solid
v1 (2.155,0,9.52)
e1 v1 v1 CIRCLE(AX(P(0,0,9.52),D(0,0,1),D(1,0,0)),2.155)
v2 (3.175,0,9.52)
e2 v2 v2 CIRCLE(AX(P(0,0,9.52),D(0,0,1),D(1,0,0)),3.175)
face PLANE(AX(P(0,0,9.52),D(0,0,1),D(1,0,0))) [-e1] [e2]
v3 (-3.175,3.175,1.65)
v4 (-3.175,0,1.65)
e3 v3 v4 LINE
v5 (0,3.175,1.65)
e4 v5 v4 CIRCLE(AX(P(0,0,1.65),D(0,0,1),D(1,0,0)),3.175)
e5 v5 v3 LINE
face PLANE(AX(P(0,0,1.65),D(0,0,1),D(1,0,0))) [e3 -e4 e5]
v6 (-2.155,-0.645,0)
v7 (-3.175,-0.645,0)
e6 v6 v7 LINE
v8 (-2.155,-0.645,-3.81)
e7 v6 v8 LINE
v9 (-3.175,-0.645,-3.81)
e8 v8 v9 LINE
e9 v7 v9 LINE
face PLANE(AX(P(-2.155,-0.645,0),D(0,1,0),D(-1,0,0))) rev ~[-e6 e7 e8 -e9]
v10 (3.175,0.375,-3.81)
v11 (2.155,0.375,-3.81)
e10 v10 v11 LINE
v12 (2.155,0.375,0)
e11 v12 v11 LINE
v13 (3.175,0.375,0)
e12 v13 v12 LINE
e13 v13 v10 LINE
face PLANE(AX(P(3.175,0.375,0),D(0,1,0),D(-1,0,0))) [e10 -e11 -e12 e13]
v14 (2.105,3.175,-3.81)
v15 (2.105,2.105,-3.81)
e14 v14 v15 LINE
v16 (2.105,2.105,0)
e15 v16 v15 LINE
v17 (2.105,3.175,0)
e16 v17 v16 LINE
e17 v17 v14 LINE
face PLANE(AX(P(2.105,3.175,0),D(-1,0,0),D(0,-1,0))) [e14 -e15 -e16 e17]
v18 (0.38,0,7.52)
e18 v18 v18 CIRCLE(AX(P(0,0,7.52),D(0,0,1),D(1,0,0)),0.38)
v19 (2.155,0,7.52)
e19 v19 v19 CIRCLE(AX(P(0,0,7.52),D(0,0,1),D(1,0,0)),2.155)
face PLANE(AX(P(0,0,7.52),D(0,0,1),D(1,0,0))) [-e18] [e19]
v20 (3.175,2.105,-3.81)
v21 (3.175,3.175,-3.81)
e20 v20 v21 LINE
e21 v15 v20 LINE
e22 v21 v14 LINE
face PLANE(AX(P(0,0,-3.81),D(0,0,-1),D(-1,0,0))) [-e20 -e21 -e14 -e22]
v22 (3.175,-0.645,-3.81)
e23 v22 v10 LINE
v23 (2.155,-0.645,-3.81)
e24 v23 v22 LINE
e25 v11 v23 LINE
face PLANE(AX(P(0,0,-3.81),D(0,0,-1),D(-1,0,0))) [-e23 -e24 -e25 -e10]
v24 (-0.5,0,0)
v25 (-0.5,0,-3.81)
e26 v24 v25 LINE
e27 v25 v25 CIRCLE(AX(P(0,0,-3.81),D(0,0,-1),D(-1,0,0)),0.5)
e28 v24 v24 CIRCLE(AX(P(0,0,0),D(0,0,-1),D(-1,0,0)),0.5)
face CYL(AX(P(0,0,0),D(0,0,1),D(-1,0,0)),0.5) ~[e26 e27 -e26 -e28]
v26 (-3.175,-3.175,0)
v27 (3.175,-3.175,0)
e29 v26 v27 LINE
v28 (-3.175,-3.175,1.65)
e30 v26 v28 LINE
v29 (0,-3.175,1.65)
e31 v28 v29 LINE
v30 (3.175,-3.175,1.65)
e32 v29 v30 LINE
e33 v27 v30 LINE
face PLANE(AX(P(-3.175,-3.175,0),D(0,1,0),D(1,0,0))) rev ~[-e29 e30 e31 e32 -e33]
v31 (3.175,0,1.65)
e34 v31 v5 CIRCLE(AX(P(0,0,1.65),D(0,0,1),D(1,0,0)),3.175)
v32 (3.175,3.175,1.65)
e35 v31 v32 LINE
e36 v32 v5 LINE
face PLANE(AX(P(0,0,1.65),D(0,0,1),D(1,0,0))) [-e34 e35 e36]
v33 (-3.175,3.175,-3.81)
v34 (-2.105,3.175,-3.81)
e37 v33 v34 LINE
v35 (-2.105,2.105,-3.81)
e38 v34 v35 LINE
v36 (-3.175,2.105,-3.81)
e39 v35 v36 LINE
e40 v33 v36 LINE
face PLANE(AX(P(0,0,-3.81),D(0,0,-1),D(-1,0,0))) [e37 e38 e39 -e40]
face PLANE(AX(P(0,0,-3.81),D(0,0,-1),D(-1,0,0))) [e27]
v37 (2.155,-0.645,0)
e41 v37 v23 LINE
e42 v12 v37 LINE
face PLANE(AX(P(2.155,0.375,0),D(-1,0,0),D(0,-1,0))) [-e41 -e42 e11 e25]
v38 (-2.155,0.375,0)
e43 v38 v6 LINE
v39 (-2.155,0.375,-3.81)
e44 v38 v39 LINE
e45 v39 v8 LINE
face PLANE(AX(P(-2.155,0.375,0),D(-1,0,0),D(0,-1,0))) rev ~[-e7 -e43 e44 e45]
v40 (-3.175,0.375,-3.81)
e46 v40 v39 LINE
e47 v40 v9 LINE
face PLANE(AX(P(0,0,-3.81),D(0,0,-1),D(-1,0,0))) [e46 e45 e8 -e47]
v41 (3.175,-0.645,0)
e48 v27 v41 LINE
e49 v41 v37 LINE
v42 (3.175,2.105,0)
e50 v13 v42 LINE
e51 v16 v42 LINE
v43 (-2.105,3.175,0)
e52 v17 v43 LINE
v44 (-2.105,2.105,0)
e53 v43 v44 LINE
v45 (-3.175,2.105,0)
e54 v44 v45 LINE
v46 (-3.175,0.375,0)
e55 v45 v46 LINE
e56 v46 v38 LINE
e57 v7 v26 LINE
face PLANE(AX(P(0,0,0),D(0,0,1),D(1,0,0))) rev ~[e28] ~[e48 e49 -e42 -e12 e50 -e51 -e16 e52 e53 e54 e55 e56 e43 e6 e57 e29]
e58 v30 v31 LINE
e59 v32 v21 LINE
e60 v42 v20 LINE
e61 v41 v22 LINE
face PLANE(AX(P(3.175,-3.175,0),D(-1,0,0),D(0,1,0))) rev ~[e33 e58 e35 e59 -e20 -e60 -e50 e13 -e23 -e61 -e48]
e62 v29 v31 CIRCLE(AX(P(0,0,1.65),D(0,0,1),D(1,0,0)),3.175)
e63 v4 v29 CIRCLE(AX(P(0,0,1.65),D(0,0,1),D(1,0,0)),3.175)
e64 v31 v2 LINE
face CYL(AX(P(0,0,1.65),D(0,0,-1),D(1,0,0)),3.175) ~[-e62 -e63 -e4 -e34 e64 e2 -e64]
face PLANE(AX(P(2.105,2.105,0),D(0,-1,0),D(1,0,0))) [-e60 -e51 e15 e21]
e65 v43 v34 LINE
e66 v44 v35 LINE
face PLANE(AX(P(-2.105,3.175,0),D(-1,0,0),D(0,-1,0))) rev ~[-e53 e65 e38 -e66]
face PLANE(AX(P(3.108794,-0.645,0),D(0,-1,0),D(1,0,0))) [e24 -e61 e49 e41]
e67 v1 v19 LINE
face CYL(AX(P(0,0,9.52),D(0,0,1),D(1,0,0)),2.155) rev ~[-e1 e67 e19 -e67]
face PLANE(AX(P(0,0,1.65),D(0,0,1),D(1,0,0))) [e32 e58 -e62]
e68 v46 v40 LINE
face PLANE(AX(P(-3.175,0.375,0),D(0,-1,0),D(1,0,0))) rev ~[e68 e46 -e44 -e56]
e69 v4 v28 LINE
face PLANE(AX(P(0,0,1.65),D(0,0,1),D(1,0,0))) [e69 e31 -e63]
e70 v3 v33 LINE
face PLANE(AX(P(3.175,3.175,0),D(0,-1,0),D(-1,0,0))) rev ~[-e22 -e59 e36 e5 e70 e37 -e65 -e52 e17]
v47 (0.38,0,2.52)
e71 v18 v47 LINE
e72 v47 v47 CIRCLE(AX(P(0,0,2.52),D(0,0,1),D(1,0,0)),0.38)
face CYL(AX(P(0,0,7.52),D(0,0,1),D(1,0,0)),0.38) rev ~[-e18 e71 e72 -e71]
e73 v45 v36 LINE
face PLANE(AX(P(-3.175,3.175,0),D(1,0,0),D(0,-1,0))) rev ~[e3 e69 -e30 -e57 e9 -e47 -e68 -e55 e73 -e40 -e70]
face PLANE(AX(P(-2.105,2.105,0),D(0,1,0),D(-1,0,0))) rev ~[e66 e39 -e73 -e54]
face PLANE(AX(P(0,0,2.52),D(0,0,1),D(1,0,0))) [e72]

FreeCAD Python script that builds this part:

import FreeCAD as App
import Part
import Sketcher

V = App.Vector
Q = App.Units.Quantity

doc = App.newDocument("Part")
body = doc.addObject("PartDesign::Body", "Body")

sketch1 = body.newObject("Sketcher::SketchObject", "Sketch")
sketch1.AttachmentSupport = (doc.getObject("XY_Plane"), [""])
sketch1.MapMode = "FlatFace"
sketch1.addGeometry(Part.LineSegment(V(-3.175, 3.175, 0), V(-3.175, -3.175, 0)), False)
sketch1.addGeometry(Part.LineSegment(V(-3.175, -3.175, 0), V(3.175, -3.175, 0)), False)
sketch1.addGeometry(Part.LineSegment(V(3.175, -3.175, 0), V(3.175, 3.175, 0)), False)
sketch1.addGeometry(Part.LineSegment(V(3.175, 3.175, 0), V(-3.175, 3.175, 0)), False)
sketch1.addConstraint(Sketcher.Constraint("Coincident", 0, 2, 1, 1))
sketch1.addConstraint(Sketcher.Constraint("Coincident", 1, 2, 2, 1))
sketch1.addConstraint(Sketcher.Constraint("Coincident", 2, 2, 3, 1))
sketch1.addConstraint(Sketcher.Constraint("Coincident", 3, 2, 0, 1))
sketch1.addConstraint(Sketcher.Constraint("Vertical", 0))
sketch1.addConstraint(Sketcher.Constraint("Horizontal", 1))
sketch1.addConstraint(Sketcher.Constraint("Vertical", 2))
sketch1.addConstraint(Sketcher.Constraint("Horizontal", 3))
sketch1.addConstraint(Sketcher.Constraint("Symmetric", 0, 2, 2, 2, -1, 1))
sketch1.addConstraint(Sketcher.Constraint("Equal", 3, 0))
sketch1.addConstraint(Sketcher.Constraint("DistanceX", 1, 1, 1, 2, Q("6.35 mm")))
pad1 = body.newObject("PartDesign::Pad", "Pad")
pad1.Profile = sketch1
pad1.Length = 1.65

sketch2 = body.newObject("Sketcher::SketchObject", "Sketch001")
sketch2.AttachmentSupport = (doc.getObject("XY_Plane"), [""])
sketch2.MapMode = "FlatFace"
sketch2.AttachmentOffset = App.Placement(V(0, 0, 1.65), App.Rotation())
sketch2.addGeometry(Part.Circle(V(0, 0, 0), V(0, 0, 1), 3.175), False)
sketch2.addConstraint(Sketcher.Constraint("Coincident", 0, 3, -1, 1))
sketch2.addConstraint(Sketcher.Constraint("Diameter", 0, Q("6.35 mm")))
pad2 = body.newObject("PartDesign::Pad", "Pad001")
pad2.Profile = sketch2
pad2.Length = 7.87

sketch3 = body.newObject("Sketcher::SketchObject", "Sketch002")
sketch3.AttachmentSupport = (doc.getObject("XY_Plane"), [""])
sketch3.MapMode = "FlatFace"
sketch3.AttachmentOffset = App.Placement(V(0, 0, 9.52), App.Rotation())
sketch3.addGeometry(Part.Circle(V(0, 0, 0), V(0, 0, 1), 2.155), False)
sketch3.addConstraint(Sketcher.Constraint("Coincident", 0, 3, -1, 1))
sketch3.addConstraint(Sketcher.Constraint("Diameter", 0, Q("4.31 mm")))
pocket1 = body.newObject("PartDesign::Pocket", "Pocket")
pocket1.Profile = sketch3
pocket1.Length = 2

sketch4 = body.newObject("Sketcher::SketchObject", "Sketch003")
sketch4.AttachmentSupport = (doc.getObject("XY_Plane"), [""])
sketch4.MapMode = "FlatFace"
sketch4.AttachmentOffset = App.Placement(V(0, 0, 7.52), App.Rotation())
sketch4.addGeometry(Part.Circle(V(0, 0, 0), V(0, 0, 1), 0.38), False)
sketch4.addConstraint(Sketcher.Constraint("Coincident", 0, 3, -1, 1))
sketch4.addConstraint(Sketcher.Constraint("Diameter", 0, Q("0.76 mm")))
pocket2 = body.newObject("PartDesign::Pocket", "Pocket001")
pocket2.Profile = sketch4
pocket2.Length = 5

sketch5 = body.newObject("Sketcher::SketchObject", "Sketch004")
sketch5.AttachmentSupport = (doc.getObject("XY_Plane"), [""])
sketch5.MapMode = "FlatFace"
sketch5.addGeometry(Part.Circle(V(0, 0, 0), V(0, 0, 1), 0.5), False)
sketch5.addConstraint(Sketcher.Constraint("Coincident", 0, 3, -1, 1))
sketch5.addConstraint(Sketcher.Constraint("Diameter", 0, Q("1 mm")))
pad3 = body.newObject("PartDesign::Pad", "Pad002")
pad3.Profile = sketch5
pad3.Length = 3.81
pad3.Reversed = True

sketch6 = body.newObject("Sketcher::SketchObject", "Sketch005")
sketch6.AttachmentSupport = (doc.getObject("XY_Plane"), [""])
sketch6.MapMode = "FlatFace"
sketch6.addGeometry(Part.LineSegment(V(-3.175, -0.645, 0), V(-3.175, 0.375, 0)), False)
sketch6.addGeometry(Part.LineSegment(V(-3.175, 0.375, 0), V(-2.155, 0.375, 0)), False)
sketch6.addGeometry(Part.LineSegment(V(-2.155, 0.375, 0), V(-2.155, -0.645, 0)), False)
sketch6.addGeometry(Part.LineSegment(V(-2.155, -0.645, 0), V(-3.175, -0.645, 0)), False)
sketch6.addGeometry(Part.LineSegment(V(-3.175, 3.175, 0), V(-2.105, 3.175, 0)), False)
sketch6.addGeometry(Part.LineSegment(V(-2.105, 3.175, 0), V(-2.105, 2.105, 0)), False)
sketch6.addGeometry(Part.LineSegment(V(-2.105, 2.105, 0), V(-3.175, 2.105, 0)), False)
sketch6.addGeometry(Part.LineSegment(V(-3.175, 2.105, 0), V(-3.175, 3.175, 0)), False)
sketch6.addGeometry(Part.LineSegment(V(3.175, -0.645, 0), V(2.155, -0.645, 0)), False)
sketch6.addGeometry(Part.LineSegment(V(2.155, -0.645, 0), V(2.155, 0.375, 0)), False)
sketch6.addGeometry(Part.LineSegment(V(2.155, 0.375, 0), V(3.175, 0.375, 0)), False)
sketch6.addGeometry(Part.LineSegment(V(3.175, 0.375, 0), V(3.175, -0.645, 0)), False)
sketch6.addGeometry(Part.LineSegment(V(2.105, 2.105, 0), V(2.105, 3.175, 0)), False)
sketch6.addGeometry(Part.LineSegment(V(2.105, 3.175, 0), V(3.175, 3.175, 0)), False)
sketch6.addGeometry(Part.LineSegment(V(3.175, 3.175, 0), V(3.175, 2.105, 0)), False)
sketch6.addGeometry(Part.LineSegment(V(3.175, 2.105, 0), V(2.105, 2.105, 0)), False)
sketch6.addConstraint(Sketcher.Constraint("Coincident", 0, 2, 1, 1))
sketch6.addConstraint(Sketcher.Constraint("Coincident", 1, 2, 2, 1))
sketch6.addConstraint(Sketcher.Constraint("Coincident", 2, 2, 3, 1))
sketch6.addConstraint(Sketcher.Constraint("Coincident", 3, 2, 0, 1))
sketch6.addConstraint(Sketcher.Constraint("Coincident", 4, 2, 5, 1))
sketch6.addConstraint(Sketcher.Constraint("Coincident", 5, 2, 6, 1))
sketch6.addConstraint(Sketcher.Constraint("Coincident", 6, 2, 7, 1))
sketch6.addConstraint(Sketcher.Constraint("Coincident", 7, 2, 4, 1))
sketch6.addConstraint(Sketcher.Constraint("Coincident", 8, 2, 9, 1))
sketch6.addConstraint(Sketcher.Constraint("Coincident", 9, 2, 10, 1))
sketch6.addConstraint(Sketcher.Constraint("Coincident", 10, 2, 11, 1))
sketch6.addConstraint(Sketcher.Constraint("Coincident", 11, 2, 8, 1))
sketch6.addConstraint(Sketcher.Constraint("Coincident", 12, 2, 13, 1))
sketch6.addConstraint(Sketcher.Constraint("Coincident", 13, 2, 14, 1))
sketch6.addConstraint(Sketcher.Constraint("Coincident", 14, 2, 15, 1))
sketch6.addConstraint(Sketcher.Constraint("Coincident", 15, 2, 12, 1))
sketch6.addConstraint(Sketcher.Constraint("Vertical", 0))
sketch6.addConstraint(Sketcher.Constraint("Horizontal", 1))
sketch6.addConstraint(Sketcher.Constraint("Vertical", 2))
sketch6.addConstraint(Sketcher.Constraint("Horizontal", 3))
sketch6.addConstraint(Sketcher.Constraint("Horizontal", 4))
sketch6.addConstraint(Sketcher.Constraint("Vertical", 5))
sketch6.addConstraint(Sketcher.Constraint("Horizontal", 6))
sketch6.addConstraint(Sketcher.Constraint("Vertical", 7))
sketch6.addConstraint(Sketcher.Constraint("Horizontal", 8))
sketch6.addConstraint(Sketcher.Constraint("Vertical", 9))
sketch6.addConstraint(Sketcher.Constraint("Horizontal", 10))
sketch6.addConstraint(Sketcher.Constraint("Vertical", 11))
sketch6.addConstraint(Sketcher.Constraint("Vertical", 12))
sketch6.addConstraint(Sketcher.Constraint("Horizontal", 13))
sketch6.addConstraint(Sketcher.Constraint("Vertical", 14))
sketch6.addConstraint(Sketcher.Constraint("Horizontal", 15))
sketch6.addConstraint(Sketcher.Constraint("Symmetric", 2, 2, 8, 2, -2))
sketch6.addConstraint(Sketcher.Constraint("Symmetric", 0, 2, 10, 2, -2))
sketch6.addConstraint(Sketcher.Constraint("Symmetric", 4, 2, 12, 2, -2))
sketch6.addConstraint(Sketcher.Constraint("Symmetric", 6, 2, 14, 2, -2))
sketch6.addConstraint(Sketcher.Constraint("Vertical", 3, 2, 6, 2))
sketch6.addConstraint(Sketcher.Constraint("Equal", 10, 0))
sketch6.addConstraint(Sketcher.Constraint("Equal", 15, 5))
sketch6.addConstraint(Sketcher.Constraint("DistanceX", 1, 1, 1, 2, Q("1.02 mm")))
sketch6.addConstraint(Sketcher.Constraint("DistanceX", 4, 1, 4, 2, Q("1.07 mm")))
sketch6.addConstraint(Sketcher.Constraint("DistanceY", 1, 2, 5, 2, Q("1.73 mm")))
sketch6.addConstraint(Sketcher.Constraint("DistanceX", 2, 2, 8, 2, Q("4.31 mm")))
sketch6.addConstraint(Sketcher.Constraint("DistanceY", -1, 1, 0, 2, Q("0.375 mm")))
pad4 = body.newObject("PartDesign::Pad", "Pad003")
pad4.Profile = sketch6
pad4.Length = 3.81
pad4.Reversed = True

doc.recompute()
